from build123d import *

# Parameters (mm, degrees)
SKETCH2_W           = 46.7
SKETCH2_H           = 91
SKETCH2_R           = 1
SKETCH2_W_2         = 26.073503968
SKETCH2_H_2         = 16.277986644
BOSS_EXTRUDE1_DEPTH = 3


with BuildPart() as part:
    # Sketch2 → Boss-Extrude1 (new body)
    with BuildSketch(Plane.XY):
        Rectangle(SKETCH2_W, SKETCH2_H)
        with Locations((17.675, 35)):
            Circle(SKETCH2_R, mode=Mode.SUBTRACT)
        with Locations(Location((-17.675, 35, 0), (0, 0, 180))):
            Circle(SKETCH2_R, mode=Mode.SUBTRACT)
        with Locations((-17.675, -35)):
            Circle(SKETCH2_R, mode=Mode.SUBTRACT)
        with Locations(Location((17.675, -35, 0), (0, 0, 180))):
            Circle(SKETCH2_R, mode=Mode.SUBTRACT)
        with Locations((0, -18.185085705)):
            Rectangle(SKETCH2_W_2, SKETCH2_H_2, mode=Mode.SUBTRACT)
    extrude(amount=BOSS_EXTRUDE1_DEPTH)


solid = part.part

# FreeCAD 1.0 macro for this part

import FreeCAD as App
import Part
import Sketcher
from FreeCAD import Vector
Q = App.Units.Quantity


def add_polygon(sketch, points):
    """Adds a closed chain of lines whose ends are joined by coincident constraints."""
    first, n = sketch.GeometryCount, len(points)
    for a, b in zip(points, points[1:] + points[:1]):
        sketch.addGeometry(Part.LineSegment(App.Vector(*a, 0), App.Vector(*b, 0)), False)
    for i in range(n):
        sketch.addConstraint(Sketcher.Constraint("Coincident", first + i, 2, first + (i + 1) % n, 1))

doc = App.newDocument("Part")
body = doc.addObject("PartDesign::Body", "Body")

sketch1 = body.newObject("Sketcher::SketchObject", "Sketch")
sketch1.AttachmentSupport = (doc.getObject("XY_Plane"), [""])
sketch1.MapMode = "FlatFace"
add_polygon(sketch1, [(-23.4, 45.5), (-23.4, -45.5), (23.4, -45.5), (23.4, 45.5)])
sketch1.addGeometry(Part.Circle(Vector(-17.7, -35, 0), Vector(0, 0, 1), 1), False)
add_polygon(sketch1, [(13, -26.3), (-13, -26.3), (-13, -10), (13, -10)])
sketch1.addGeometry(Part.Circle(Vector(17.7, -35, 0), Vector(0, 0, 1), 1), False)
sketch1.addGeometry(Part.Circle(Vector(-17.7, 35, 0), Vector(0, 0, 1), 1), False)
sketch1.addGeometry(Part.Circle(Vector(17.7, 35, 0), Vector(0, 0, 1), 1), False)
sketch1.addConstraint([
    Sketcher.Constraint("Vertical", 0),
    Sketcher.Constraint("Horizontal", 1),
    Sketcher.Constraint("Vertical", 2),
    Sketcher.Constraint("Horizontal", 3),
    Sketcher.Constraint("Horizontal", 5),
    Sketcher.Constraint("Vertical", 6),
    Sketcher.Constraint("Horizontal", 7),
    Sketcher.Constraint("Vertical", 8),
    Sketcher.Constraint("Equal", 4, 9),
    Sketcher.Constraint("Equal", 9, 10),
    Sketcher.Constraint("Equal", 10, 11),
    Sketcher.Constraint("Symmetric", 9, 3, 10, 3, -1, 1),
    Sketcher.Constraint("Symmetric", 4, 3, 11, 3, -1, 1),
    Sketcher.Constraint("Symmetric", 0, 2, 2, 2, -1, 1),
    Sketcher.Constraint("Symmetric", 4, 3, 9, 3, -2),
    Sketcher.Constraint("Diameter", 4, Q("2 mm")),
    Sketcher.Constraint("DistanceY", 0, 2, 0, 1, Q("91 mm")),
    Sketcher.Constraint("DistanceX", 1, 1, 1, 2, Q("46.7 mm")),
    Sketcher.Constraint("DistanceY", 4, 3, -1, 1, Q("35 mm")),
    Sketcher.Constraint("DistanceX", 4, 3, 9, 3, Q("35.35 mm")),
    Sketcher.Constraint("DistanceX", 5, 2, 5, 1, Q("26.073504 mm")),
    Sketcher.Constraint("DistanceY", 6, 1, 6, 2, Q("16.277987 mm")),
    Sketcher.Constraint("DistanceX", 5, 2, -1, 1, Q("13.036752 mm")),
    Sketcher.Constraint("DistanceY", 5, 2, -1, 1, Q("26.324079 mm")),
])
pad1 = body.newObject("PartDesign::Pad", "Pad")
pad1.Profile = sketch1
pad1.Length = 3

doc.recompute()
